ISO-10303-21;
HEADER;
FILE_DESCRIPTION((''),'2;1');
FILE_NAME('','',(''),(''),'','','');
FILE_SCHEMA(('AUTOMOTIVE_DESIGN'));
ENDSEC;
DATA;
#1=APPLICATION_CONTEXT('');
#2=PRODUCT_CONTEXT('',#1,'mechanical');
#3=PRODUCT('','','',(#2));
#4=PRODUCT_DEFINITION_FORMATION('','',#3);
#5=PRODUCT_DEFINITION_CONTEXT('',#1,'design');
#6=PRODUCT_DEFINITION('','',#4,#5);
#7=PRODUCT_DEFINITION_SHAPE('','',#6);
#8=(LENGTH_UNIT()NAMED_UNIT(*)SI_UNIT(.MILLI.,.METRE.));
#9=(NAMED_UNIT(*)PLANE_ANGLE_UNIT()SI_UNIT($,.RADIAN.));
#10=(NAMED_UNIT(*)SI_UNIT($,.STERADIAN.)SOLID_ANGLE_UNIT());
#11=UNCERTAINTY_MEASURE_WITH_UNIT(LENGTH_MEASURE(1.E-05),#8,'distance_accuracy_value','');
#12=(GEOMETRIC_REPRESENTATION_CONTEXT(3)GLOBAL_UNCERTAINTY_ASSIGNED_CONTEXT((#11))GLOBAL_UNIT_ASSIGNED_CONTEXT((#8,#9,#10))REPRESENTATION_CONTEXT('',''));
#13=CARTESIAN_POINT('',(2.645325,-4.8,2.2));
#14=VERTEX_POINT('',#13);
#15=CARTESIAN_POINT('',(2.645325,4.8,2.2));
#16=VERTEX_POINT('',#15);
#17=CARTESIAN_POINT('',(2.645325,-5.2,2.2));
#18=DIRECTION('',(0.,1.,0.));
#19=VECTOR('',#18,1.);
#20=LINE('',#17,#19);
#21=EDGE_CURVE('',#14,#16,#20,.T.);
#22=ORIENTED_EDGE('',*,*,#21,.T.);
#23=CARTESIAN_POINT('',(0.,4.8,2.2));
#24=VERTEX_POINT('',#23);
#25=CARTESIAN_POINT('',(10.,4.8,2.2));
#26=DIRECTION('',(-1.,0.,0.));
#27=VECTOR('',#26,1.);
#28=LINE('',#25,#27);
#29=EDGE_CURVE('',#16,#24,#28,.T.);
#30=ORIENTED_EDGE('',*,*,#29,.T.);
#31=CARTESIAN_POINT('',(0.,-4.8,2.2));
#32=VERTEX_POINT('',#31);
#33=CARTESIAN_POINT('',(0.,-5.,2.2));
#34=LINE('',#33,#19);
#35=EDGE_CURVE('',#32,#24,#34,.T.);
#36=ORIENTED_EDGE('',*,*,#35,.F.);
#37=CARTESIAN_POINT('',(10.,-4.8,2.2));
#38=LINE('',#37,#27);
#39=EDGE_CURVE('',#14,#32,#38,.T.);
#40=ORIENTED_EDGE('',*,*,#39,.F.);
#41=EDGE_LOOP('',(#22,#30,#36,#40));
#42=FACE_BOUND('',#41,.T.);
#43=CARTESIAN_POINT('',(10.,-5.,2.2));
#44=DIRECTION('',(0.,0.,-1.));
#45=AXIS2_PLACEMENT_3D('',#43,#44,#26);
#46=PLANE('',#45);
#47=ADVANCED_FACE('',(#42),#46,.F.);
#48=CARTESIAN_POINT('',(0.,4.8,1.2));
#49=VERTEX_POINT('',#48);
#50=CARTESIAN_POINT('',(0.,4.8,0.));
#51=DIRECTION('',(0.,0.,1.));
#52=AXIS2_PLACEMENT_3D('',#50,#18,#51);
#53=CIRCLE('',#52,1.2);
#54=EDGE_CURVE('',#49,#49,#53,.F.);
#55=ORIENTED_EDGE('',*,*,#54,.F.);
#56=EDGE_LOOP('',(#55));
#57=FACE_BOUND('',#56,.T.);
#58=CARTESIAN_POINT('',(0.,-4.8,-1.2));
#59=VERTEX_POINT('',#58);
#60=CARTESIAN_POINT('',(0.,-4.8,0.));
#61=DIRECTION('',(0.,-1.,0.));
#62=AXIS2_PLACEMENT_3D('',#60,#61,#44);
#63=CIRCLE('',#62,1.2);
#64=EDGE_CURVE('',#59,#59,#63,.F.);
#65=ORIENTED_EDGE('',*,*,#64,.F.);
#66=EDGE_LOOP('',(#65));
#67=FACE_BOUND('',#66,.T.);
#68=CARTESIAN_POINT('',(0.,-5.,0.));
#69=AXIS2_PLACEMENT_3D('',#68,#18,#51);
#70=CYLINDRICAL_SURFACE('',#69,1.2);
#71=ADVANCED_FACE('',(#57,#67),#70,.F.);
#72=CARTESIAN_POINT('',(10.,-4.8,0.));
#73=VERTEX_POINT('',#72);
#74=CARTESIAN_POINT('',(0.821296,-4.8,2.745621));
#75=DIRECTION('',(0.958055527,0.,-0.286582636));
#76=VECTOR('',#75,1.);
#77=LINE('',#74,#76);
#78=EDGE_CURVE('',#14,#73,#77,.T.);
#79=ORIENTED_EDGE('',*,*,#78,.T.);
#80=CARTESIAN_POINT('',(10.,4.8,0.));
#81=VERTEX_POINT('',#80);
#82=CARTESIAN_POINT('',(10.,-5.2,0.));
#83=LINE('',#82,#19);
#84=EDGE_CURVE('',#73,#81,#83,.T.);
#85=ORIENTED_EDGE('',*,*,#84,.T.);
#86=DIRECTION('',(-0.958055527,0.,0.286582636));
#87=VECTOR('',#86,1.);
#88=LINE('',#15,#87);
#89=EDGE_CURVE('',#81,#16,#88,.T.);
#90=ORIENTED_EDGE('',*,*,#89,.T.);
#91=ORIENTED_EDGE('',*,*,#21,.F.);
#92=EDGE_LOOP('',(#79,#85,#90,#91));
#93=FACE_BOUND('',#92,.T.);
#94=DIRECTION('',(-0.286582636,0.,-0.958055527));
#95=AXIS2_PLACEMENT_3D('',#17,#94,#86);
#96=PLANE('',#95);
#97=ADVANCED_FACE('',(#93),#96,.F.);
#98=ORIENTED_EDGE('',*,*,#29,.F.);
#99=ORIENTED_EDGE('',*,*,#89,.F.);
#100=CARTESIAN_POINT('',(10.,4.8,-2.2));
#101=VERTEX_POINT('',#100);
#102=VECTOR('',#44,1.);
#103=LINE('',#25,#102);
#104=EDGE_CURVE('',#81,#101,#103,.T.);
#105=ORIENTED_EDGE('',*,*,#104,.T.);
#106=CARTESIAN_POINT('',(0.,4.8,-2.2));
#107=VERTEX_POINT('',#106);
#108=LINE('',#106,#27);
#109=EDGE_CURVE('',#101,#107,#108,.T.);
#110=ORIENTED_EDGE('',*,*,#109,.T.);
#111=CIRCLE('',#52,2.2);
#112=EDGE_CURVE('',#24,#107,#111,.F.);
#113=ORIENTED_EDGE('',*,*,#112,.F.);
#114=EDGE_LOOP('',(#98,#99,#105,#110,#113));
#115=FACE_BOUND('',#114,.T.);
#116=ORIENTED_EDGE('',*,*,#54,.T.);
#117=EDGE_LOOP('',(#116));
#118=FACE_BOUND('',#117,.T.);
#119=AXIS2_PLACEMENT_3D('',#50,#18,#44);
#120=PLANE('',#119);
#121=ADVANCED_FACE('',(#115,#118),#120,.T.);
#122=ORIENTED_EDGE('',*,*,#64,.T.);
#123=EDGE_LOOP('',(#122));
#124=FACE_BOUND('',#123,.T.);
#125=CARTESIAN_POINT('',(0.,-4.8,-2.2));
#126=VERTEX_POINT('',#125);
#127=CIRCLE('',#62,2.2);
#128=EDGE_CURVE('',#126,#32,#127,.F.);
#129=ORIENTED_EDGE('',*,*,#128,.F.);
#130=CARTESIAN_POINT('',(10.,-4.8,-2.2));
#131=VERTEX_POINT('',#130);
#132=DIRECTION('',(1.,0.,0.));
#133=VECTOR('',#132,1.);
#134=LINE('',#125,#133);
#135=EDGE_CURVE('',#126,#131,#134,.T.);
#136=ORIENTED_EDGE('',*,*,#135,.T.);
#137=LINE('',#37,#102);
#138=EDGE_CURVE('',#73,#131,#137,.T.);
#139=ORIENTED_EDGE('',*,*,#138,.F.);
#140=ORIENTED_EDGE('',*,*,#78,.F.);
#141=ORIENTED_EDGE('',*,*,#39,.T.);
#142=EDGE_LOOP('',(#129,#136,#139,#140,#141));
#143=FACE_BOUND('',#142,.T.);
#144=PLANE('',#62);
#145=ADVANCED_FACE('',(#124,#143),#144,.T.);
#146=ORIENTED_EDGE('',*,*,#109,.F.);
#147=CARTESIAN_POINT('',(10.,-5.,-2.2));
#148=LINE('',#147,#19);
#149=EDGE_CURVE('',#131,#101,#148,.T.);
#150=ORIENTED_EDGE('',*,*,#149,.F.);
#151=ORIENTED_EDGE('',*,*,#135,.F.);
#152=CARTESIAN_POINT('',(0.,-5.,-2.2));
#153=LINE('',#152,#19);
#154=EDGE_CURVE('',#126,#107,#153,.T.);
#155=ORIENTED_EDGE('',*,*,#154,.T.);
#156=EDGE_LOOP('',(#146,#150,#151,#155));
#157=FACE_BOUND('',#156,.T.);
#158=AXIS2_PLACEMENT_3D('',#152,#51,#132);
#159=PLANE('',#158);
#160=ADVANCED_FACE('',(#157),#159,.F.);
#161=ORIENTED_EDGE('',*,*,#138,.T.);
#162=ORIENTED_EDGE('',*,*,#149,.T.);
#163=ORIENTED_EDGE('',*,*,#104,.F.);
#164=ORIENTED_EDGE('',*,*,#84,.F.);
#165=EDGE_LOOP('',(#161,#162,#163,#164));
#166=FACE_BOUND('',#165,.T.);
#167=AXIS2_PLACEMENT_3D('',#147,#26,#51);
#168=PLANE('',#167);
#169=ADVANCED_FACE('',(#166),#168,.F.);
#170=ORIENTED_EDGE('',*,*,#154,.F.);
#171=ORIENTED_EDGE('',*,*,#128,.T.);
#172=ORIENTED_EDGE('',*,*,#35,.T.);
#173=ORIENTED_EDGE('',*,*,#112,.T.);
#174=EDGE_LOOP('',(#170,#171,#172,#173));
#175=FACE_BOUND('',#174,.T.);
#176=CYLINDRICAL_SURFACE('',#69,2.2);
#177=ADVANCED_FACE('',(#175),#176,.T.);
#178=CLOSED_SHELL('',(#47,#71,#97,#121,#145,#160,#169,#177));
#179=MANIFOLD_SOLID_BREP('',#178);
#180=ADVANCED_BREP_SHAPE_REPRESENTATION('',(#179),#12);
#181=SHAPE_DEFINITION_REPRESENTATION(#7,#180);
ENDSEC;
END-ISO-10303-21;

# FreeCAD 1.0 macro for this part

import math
import FreeCAD as App
import Part
import Sketcher

V = App.Vector


def add_polygon(sketch, points):
    """Adds a closed chain of lines whose ends are joined by coincident constraints."""
    first, n = sketch.GeometryCount, len(points)
    for a, b in zip(points, points[1:] + points[:1]):
        sketch.addGeometry(Part.LineSegment(App.Vector(*a, 0), App.Vector(*b, 0)), False)
    for i in range(n):
        sketch.addConstraint(Sketcher.Constraint("Coincident", first + i, 2, first + (i + 1) % n, 1))

doc = App.newDocument("Part")
body = doc.addObject("PartDesign::Body", "Body")

sketch1 = body.newObject("Sketcher::SketchObject", "Sketch")
sketch1.AttachmentSupport = (doc.getObject("XZ_Plane"), [""])
sketch1.MapMode = "FlatFace"
sketch1.addGeometry([
    Part.LineSegment(V(10, -2.2, 0), V(0, -2.2, 0)),
    Part.ArcOfCircle(Part.Circle(V(0, 0, 0), V(0, 0, 1), 2.2), math.radians(90), math.radians(270)),
    Part.LineSegment(V(0, 2.2, 0), V(10, 2.2, 0)),
    Part.LineSegment(V(10, 2.2, 0), V(10, -2.2, 0)),
], False)
sketch1.addConstraint([
    Sketcher.Constraint("Tangent", 0, 2, 1, 2),
    Sketcher.Constraint("Tangent", 1, 1, 2, 1),
    Sketcher.Constraint("Coincident", 2, 2, 3, 1),
    Sketcher.Constraint("Coincident", 3, 2, 0, 1),
    Sketcher.Constraint("Horizontal", 0),
    Sketcher.Constraint("Horizontal", 2),
    Sketcher.Constraint("Vertical", 3),
    Sketcher.Constraint("Coincident", 1, 3, -1, 1),
    Sketcher.Constraint("Radius", 1, 2.2),
    Sketcher.Constraint("DistanceX", 0, 2, 0, 1, 10.0),
])
pad1 = body.newObject("PartDesign::Pad", "Pad")
pad1.Profile = sketch1
pad1.Type = "TwoLengths"
pad1.Length = 5
pad1.Length2 = 5
pad1.Reversed = True

sketch2 = body.newObject("Sketcher::SketchObject", "Sketch001")
sketch2.AttachmentSupport = (doc.getObject("XZ_Plane"), [""])
sketch2.MapMode = "FlatFace"
sketch2.AttachmentOffset = App.Placement(V(0, 0, -5), App.Rotation())
sketch2.addGeometry(Part.Circle(V(0, 0, 0), V(0, 0, 1), 1.2), False)
sketch2.addConstraint([
    Sketcher.Constraint("Coincident", 0, 3, -1, 1),
    Sketcher.Constraint("Diameter", 0, 2.4),
])
pocket1 = body.newObject("PartDesign::Pocket", "Pocket")
pocket1.Profile = sketch2
pocket1.Length = 10
pocket1.Reversed = True

sketch3 = body.newObject("Sketcher::SketchObject", "Sketch002")
sketch3.AttachmentSupport = (doc.getObject("XZ_Plane"), [""])
sketch3.MapMode = "FlatFace"
sketch3.AttachmentOffset = App.Placement(V(0, 0, 5), App.Rotation())
add_polygon(sketch3, [(-3.4, 2.2), (-3.4, -2.6), (10, -2.6), (10, 2.2)])
sketch3.addConstraint([
    Sketcher.Constraint("Vertical", 0),
    Sketcher.Constraint("Horizontal", 1),
    Sketcher.Constraint("Vertical", 2),
    Sketcher.Constraint("Horizontal", 3),
    Sketcher.Constraint("DistanceX", -1, 1, 1, 2, 10.0),
    Sketcher.Constraint("DistanceY", -1, 1, 2, 2, 2.2),
    Sketcher.Constraint("DistanceX", 1, 1, 1, 2, 13.37458),
    Sketcher.Constraint("DistanceY", 0, 2, 0, 1, 4.798064),
])
pocket2 = body.newObject("PartDesign::Pocket", "Pocket001")
pocket2.Profile = sketch3
pocket2.Length = 0.2
doc.recompute()

mirrored = body.newObject("PartDesign::Mirrored", "Mirrored")
mirrored.Originals = [pocket2]
mirrored.MirrorPlane = (doc.getObject("XZ_Plane"), [""])
body.Tip = mirrored

sketch4 = body.newObject("Sketcher::SketchObject", "Sketch003")
sketch4.AttachmentSupport = (doc.getObject("XZ_Plane"), [""])
sketch4.MapMode = "FlatFace"
sketch4.AttachmentOffset = App.Placement(V(0, 0, -4.8), App.Rotation())
add_polygon(sketch4, [(10, 0), (2.6, 2.2), (10, 2.2)])
sketch4.addConstraint([
    Sketcher.Constraint("Horizontal", 1),
    Sketcher.Constraint("Vertical", 2),
    Sketcher.Constraint("PointOnObject", 2, 2, -1),
    Sketcher.Constraint("DistanceY", 2, 2, 2, 1, 2.2),
    Sketcher.Constraint("DistanceX", -1, 1, 1, 2, 10.0),
    Sketcher.Constraint("Distance", 0, 7.676669),
])
pocket3 = body.newObject("PartDesign::Pocket", "Pocket002")
pocket3.Profile = sketch4
pocket3.Length = 10
pocket3.Reversed = True

doc.recompute()
